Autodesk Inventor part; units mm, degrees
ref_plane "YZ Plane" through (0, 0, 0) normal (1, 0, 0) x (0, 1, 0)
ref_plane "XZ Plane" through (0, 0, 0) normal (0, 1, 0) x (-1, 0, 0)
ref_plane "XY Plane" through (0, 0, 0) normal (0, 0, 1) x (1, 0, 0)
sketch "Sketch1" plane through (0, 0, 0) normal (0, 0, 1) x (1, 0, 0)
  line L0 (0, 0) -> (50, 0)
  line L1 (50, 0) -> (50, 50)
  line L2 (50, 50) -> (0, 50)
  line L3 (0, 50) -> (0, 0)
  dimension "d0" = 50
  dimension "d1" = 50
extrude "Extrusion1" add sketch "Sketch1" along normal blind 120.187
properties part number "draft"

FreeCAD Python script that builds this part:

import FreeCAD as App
import Part
import Sketcher
Q = App.Units.Quantity


def add_polygon(sketch, points):
    """Adds a closed chain of lines whose ends are joined by coincident constraints."""
    first, n = sketch.GeometryCount, len(points)
    for a, b in zip(points, points[1:] + points[:1]):
        sketch.addGeometry(Part.LineSegment(App.Vector(*a, 0), App.Vector(*b, 0)), False)
    for i in range(n):
        sketch.addConstraint(Sketcher.Constraint("Coincident", first + i, 2, first + (i + 1) % n, 1))

doc = App.newDocument("Part")
params = doc.addObject("Spreadsheet::Sheet", "Params")
for row, (alias, value) in enumerate([
    ("sketch1_width", "50 mm"),
    ("pad1_length", "120.187 mm"),
], start=1):
    params.set(f"A{row}", alias)
    params.set(f"B{row}", "=" + value)
    params.setAlias(f"B{row}", alias)

body = doc.addObject("PartDesign::Body", "Body")

# Sketch on XY plane
sketch1 = doc.addObject("Sketcher::SketchObject", "Sketch")
body.addObject(sketch1)
sketch1.AttachmentSupport = (doc.XY_Plane, [""])
sketch1.MapMode = "FlatFace"
add_polygon(sketch1, [(0, 50), (0, 0), (50, 0), (50, 50)])  # lines 0-3
sketch1.addConstraint(Sketcher.Constraint("Vertical", 0))
sketch1.addConstraint(Sketcher.Constraint("Horizontal", 1))
sketch1.addConstraint(Sketcher.Constraint("Vertical", 2))
sketch1.addConstraint(Sketcher.Constraint("Horizontal", 3))
sketch1.addConstraint(Sketcher.Constraint("Coincident", 0, 2, -1, 1))
sketch1.addConstraint(Sketcher.Constraint("Equal", 3, 0))
sketch1.addConstraint(Sketcher.Constraint("DistanceX", 1, 1, 1, 2, Q("50 mm")))
sketch1.setExpression("Constraints[10]", "Params.sketch1_width")
pad1 = doc.addObject("PartDesign::Pad", "Pad")
body.addObject(pad1)
pad1.Profile = sketch1
pad1.setExpression("Length", "Params.pad1_length")

doc.recompute()
